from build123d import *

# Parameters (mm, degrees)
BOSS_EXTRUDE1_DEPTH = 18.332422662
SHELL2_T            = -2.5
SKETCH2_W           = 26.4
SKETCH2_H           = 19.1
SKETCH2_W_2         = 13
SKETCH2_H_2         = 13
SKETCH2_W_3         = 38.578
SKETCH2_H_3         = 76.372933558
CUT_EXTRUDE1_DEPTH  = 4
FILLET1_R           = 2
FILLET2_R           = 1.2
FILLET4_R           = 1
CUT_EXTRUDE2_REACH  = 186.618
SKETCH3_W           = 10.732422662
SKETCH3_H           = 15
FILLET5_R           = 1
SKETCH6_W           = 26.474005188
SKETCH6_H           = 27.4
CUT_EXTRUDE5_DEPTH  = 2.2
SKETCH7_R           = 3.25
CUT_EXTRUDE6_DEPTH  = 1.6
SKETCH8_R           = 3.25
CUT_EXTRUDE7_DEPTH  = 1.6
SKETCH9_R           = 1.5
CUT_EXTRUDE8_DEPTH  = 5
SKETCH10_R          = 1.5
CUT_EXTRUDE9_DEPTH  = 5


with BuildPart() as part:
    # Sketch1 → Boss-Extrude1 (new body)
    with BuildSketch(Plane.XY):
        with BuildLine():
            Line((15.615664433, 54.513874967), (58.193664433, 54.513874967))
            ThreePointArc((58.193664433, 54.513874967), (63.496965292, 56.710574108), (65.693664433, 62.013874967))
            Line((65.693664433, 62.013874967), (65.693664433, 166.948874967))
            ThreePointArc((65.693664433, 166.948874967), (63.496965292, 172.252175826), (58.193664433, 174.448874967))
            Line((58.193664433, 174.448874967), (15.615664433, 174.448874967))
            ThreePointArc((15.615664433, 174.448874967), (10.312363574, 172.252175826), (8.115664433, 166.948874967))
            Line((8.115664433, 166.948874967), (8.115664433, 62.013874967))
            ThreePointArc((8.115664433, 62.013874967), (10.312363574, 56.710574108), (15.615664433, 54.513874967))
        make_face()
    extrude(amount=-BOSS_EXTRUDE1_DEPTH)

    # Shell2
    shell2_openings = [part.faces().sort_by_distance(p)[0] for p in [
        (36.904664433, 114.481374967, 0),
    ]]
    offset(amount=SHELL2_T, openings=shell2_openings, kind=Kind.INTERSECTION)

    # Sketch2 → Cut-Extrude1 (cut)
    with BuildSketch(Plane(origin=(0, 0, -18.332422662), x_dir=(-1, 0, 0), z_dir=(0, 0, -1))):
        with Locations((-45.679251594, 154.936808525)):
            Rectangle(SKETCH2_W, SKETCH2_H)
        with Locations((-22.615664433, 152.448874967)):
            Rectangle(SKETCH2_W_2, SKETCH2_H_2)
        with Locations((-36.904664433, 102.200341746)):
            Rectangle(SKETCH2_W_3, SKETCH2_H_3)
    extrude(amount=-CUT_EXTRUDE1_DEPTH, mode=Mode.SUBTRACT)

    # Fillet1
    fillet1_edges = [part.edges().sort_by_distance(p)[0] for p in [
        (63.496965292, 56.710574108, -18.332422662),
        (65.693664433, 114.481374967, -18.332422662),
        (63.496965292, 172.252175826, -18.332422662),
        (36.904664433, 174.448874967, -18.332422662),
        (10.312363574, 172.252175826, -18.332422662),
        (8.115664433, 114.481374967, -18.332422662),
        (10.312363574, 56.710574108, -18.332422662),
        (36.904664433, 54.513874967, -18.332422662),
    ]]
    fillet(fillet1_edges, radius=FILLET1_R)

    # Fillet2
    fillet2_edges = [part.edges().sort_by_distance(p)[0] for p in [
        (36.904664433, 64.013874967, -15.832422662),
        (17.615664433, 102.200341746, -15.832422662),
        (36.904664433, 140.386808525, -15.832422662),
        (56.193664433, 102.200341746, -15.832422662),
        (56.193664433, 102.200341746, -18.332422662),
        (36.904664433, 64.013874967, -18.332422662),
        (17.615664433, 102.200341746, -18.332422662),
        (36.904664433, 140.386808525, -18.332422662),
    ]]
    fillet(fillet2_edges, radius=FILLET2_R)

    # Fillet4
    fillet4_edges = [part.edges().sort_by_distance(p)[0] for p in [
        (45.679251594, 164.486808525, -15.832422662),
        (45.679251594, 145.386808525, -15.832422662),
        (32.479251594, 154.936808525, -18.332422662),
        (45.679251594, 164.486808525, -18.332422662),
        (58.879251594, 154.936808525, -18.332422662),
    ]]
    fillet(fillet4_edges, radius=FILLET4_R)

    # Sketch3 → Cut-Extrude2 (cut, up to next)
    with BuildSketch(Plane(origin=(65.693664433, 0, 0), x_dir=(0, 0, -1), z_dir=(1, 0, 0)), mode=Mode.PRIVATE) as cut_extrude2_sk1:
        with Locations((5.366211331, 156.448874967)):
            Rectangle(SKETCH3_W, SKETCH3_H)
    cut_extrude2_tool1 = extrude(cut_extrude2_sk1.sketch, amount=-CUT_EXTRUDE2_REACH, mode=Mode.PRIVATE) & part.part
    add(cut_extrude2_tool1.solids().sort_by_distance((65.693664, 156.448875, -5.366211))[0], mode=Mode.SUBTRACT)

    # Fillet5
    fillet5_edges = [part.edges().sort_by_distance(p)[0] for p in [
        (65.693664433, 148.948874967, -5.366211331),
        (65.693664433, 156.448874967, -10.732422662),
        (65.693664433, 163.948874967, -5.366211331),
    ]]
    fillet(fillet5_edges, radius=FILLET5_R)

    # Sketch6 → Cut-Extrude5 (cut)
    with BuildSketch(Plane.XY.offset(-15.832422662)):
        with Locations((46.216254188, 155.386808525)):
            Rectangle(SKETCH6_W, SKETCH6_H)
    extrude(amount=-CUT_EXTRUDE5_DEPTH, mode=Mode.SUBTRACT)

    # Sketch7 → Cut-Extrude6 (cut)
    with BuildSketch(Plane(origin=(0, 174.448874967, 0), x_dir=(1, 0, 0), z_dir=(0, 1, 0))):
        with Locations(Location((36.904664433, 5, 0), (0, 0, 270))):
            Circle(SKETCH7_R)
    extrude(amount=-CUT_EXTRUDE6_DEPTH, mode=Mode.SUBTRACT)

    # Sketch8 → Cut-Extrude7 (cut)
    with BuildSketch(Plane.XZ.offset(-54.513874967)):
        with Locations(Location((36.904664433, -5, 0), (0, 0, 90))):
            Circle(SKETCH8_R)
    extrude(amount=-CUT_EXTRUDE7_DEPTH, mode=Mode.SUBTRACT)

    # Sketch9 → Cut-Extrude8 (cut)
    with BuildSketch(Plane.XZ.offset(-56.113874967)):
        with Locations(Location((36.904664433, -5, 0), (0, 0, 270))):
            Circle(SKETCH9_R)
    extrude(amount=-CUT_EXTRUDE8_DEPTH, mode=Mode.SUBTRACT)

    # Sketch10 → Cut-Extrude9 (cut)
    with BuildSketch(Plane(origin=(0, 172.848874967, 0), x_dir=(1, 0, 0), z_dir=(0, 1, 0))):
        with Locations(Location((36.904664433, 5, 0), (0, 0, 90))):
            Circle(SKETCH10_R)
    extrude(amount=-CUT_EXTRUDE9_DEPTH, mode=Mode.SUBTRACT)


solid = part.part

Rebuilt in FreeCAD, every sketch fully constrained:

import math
import FreeCAD as App
import Part
import Sketcher
Q = App.Units.Quantity


def edges_at(feature, points):
    """Names of the edges that pass closest to the given points."""
    edges = feature.Shape.Edges
    near = lambda p: min(range(len(edges)), key=lambda i: edges[i].distToShape(Part.Vertex(*p))[0])
    return sorted({f"Edge{near(p) + 1}" for p in points})


def faces_at(feature, points):
    """Names of the faces that lie closest to the given points."""
    faces = feature.Shape.Faces
    near = lambda p: min(range(len(faces)), key=lambda i: faces[i].distToShape(Part.Vertex(*p))[0])
    return sorted({f"Face{near(p) + 1}" for p in points})


def add_polygon(sketch, points):
    """Adds a closed chain of lines whose ends are joined by coincident constraints."""
    first, n = sketch.GeometryCount, len(points)
    for a, b in zip(points, points[1:] + points[:1]):
        sketch.addGeometry(Part.LineSegment(App.Vector(*a, 0), App.Vector(*b, 0)), False)
    for i in range(n):
        sketch.addConstraint(Sketcher.Constraint("Coincident", first + i, 2, first + (i + 1) % n, 1))

doc = App.newDocument("Part")
params = doc.addObject("Spreadsheet::Sheet", "Params")
for row, (alias, value) in enumerate([
    ("sketch1_radius", "7.5 mm"),
    ("pad1_length", "18.332423 mm"),
    ("thickness_wall", "2.5 mm"),
    ("sketch2_width", "13 mm"),
    ("sketch2_width2", "26.4 mm"),
    ("sketch2_height", "19.1 mm"),
    ("pocket1_length", "4 mm"),
    ("fillet_radius", "2 mm"),
    ("fillet2_radius", "1.2 mm"),
    ("fillet3_radius", "1 mm"),
    ("sketch3_width", "15 mm"),
    ("fillet4_radius", "1 mm"),
    ("sketch4_height", "27.4 mm"),
    ("pocket3_length", "2.2 mm"),
    ("sketch5_diameter", "6.5 mm"),
    ("pocket4_length", "1.6 mm"),
    ("sketch6_diameter", "6.5 mm"),
    ("pocket5_length", "1.6 mm"),
    ("sketch7_diameter", "3 mm"),
    ("pocket6_length", "5 mm"),
    ("sketch8_diameter", "3 mm"),
    ("pocket7_length", "5 mm"),
], start=1):
    params.set(f"A{row}", alias)
    params.set(f"B{row}", "=" + value)
    params.setAlias(f"B{row}", alias)

body = doc.addObject("PartDesign::Body", "Body")

sketch1 = doc.addObject("Sketcher::SketchObject", "Sketch")
body.addObject(sketch1)
sketch1.AttachmentSupport = (doc.XY_Plane, [""])
sketch1.MapMode = "FlatFace"
sketch1.addGeometry([
    Part.LineSegment(App.Vector(16, 55, 0), App.Vector(58, 55, 0)),
    Part.ArcOfCircle(Part.Circle(App.Vector(58, 62, 0), App.Vector(0, 0, 1), 8), math.radians(-90), math.radians(0)),
    Part.LineSegment(App.Vector(66, 62, 0), App.Vector(66, 167, 0)),
    Part.ArcOfCircle(Part.Circle(App.Vector(58, 167, 0), App.Vector(0, 0, 1), 8), math.radians(0), math.radians(90)),
    Part.LineSegment(App.Vector(58, 174, 0), App.Vector(16, 174, 0)),
    Part.ArcOfCircle(Part.Circle(App.Vector(16, 167, 0), App.Vector(0, 0, 1), 8), math.radians(90), math.radians(180)),
    Part.LineSegment(App.Vector(8, 167, 0), App.Vector(8, 62, 0)),
    Part.ArcOfCircle(Part.Circle(App.Vector(16, 62, 0), App.Vector(0, 0, 1), 8), math.radians(180), math.radians(270)),
], False)
sketch1.addConstraint([
    Sketcher.Constraint("Tangent", 0, 2, 1, 1),
    Sketcher.Constraint("Tangent", 1, 2, 2, 1),
    Sketcher.Constraint("Tangent", 2, 2, 3, 1),
    Sketcher.Constraint("Tangent", 3, 2, 4, 1),
    Sketcher.Constraint("Tangent", 4, 2, 5, 1),
    Sketcher.Constraint("Tangent", 5, 2, 6, 1),
    Sketcher.Constraint("Tangent", 6, 2, 7, 1),
    Sketcher.Constraint("Tangent", 7, 2, 0, 1),
    Sketcher.Constraint("Horizontal", 0),
    Sketcher.Constraint("Vertical", 2),
    Sketcher.Constraint("Horizontal", 4),
    Sketcher.Constraint("Vertical", 6),
    Sketcher.Constraint("Equal", 1, 3),
    Sketcher.Constraint("Equal", 3, 5),
    Sketcher.Constraint("Equal", 5, 7),
    Sketcher.Constraint("Radius", 1, Q("7.5 mm")),
    Sketcher.Constraint("DistanceX", 0, 1, 0, 2, Q("42.578 mm")),
    Sketcher.Constraint("DistanceY", 2, 1, 2, 2, Q("104.935 mm")),
    Sketcher.Constraint("DistanceX", -1, 1, 1, 3, Q("58.193664 mm")),
    Sketcher.Constraint("DistanceY", -1, 1, 1, 3, Q("62.013875 mm")),
])
sketch1.setExpression("Constraints[15]", "Params.sketch1_radius")
pad1 = doc.addObject("PartDesign::Pad", "Pad")
body.addObject(pad1)
pad1.Profile = sketch1
pad1.setExpression("Length", "Params.pad1_length")
pad1.Reversed = True
doc.recompute()

thickness = doc.addObject("PartDesign::Thickness", "Thickness")
body.addObject(thickness)
thickness.Base = (pad1, faces_at(pad1, [(36.905, 114.481, 0)]))
thickness.setExpression("Value", "Params.thickness_wall")
thickness.Reversed = True
thickness.Join = "Intersection"

sketch2 = doc.addObject("Sketcher::SketchObject", "Sketch001")
body.addObject(sketch2)
sketch2.AttachmentSupport = (doc.XY_Plane, [""])
sketch2.MapMode = "FlatFace"
sketch2.AttachmentOffset = App.Placement(App.Vector(0, 0, -18.332423), App.Rotation())
add_polygon(sketch2, [(59, 164), (59, 145), (32, 145), (32, 164)])
add_polygon(sketch2, [(29, 159), (29, 146), (16, 146), (16, 159)])
add_polygon(sketch2, [(56, 140), (56, 64), (18, 64), (18, 140)])
sketch2.addConstraint([
    Sketcher.Constraint("Vertical", 0),
    Sketcher.Constraint("Horizontal", 1),
    Sketcher.Constraint("Vertical", 2),
    Sketcher.Constraint("Horizontal", 3),
    Sketcher.Constraint("Vertical", 4),
    Sketcher.Constraint("Horizontal", 5),
    Sketcher.Constraint("Vertical", 6),
    Sketcher.Constraint("Horizontal", 7),
    Sketcher.Constraint("Vertical", 8),
    Sketcher.Constraint("Horizontal", 9),
    Sketcher.Constraint("Vertical", 10),
    Sketcher.Constraint("Horizontal", 11),
    Sketcher.Constraint("Equal", 7, 4),
    Sketcher.Constraint("DistanceX", 5, 2, 5, 1, Q("13 mm")),
    Sketcher.Constraint("DistanceX", 1, 2, 1, 1, Q("26.4 mm")),
    Sketcher.Constraint("DistanceY", 0, 2, 0, 1, Q("19.1 mm")),
    Sketcher.Constraint("DistanceY", 10, 2, 1, 2, Q("5 mm")),
    Sketcher.Constraint("DistanceX", 5, 2, 9, 2, Q("1.5 mm")),
    Sketcher.Constraint("DistanceX", 9, 2, 9, 1, Q("38.578 mm")),
    Sketcher.Constraint("DistanceY", 8, 2, 4, 2, Q("81.935 mm")),
    Sketcher.Constraint("DistanceY", 8, 2, 8, 1, Q("76.372934 mm")),
    Sketcher.Constraint("DistanceX", -1, 1, 0, 2, Q("58.879252 mm")),
    Sketcher.Constraint("DistanceY", -1, 1, 0, 2, Q("145.386809 mm")),
    Sketcher.Constraint("DistanceX", -1, 1, 4, 2, Q("29.115664 mm")),
])
sketch2.setExpression("Constraints[25]", "Params.sketch2_width")
sketch2.setExpression("Constraints[26]", "Params.sketch2_width2")
sketch2.setExpression("Constraints[27]", "Params.sketch2_height")
pocket1 = doc.addObject("PartDesign::Pocket", "Pocket")
body.addObject(pocket1)
pocket1.Profile = sketch2
pocket1.setExpression("Length", "Params.pocket1_length")
pocket1.Reversed = True
doc.recompute()

fillet = doc.addObject("PartDesign::Fillet", "Fillet")
body.addObject(fillet)
fillet.Base = (pocket1, edges_at(pocket1, [
    (63.497, 56.711, -18.332),
    (65.694, 114.481, -18.332),
    (63.497, 172.252, -18.332),
    (36.905, 174.449, -18.332),
    (10.312, 172.252, -18.332),
    (8.116, 114.481, -18.332),
    (10.312, 56.711, -18.332),
    (36.905, 54.514, -18.332),
]))
fillet.setExpression("Radius", "Params.fillet_radius")
doc.recompute()

fillet2 = doc.addObject("PartDesign::Fillet", "Fillet001")
body.addObject(fillet2)
fillet2.Base = (fillet, edges_at(fillet, [
    (36.905, 64.014, -15.832),
    (17.616, 102.2, -15.832),
    (36.905, 140.387, -15.832),
    (56.194, 102.2, -15.832),
    (56.194, 102.2, -18.332),
    (36.905, 64.014, -18.332),
    (17.616, 102.2, -18.332),
    (36.905, 140.387, -18.332),
]))
fillet2.setExpression("Radius", "Params.fillet2_radius")
doc.recompute()

fillet3 = doc.addObject("PartDesign::Fillet", "Fillet002")
body.addObject(fillet3)
fillet3.Base = (fillet2, edges_at(fillet2, [
    (45.679, 164.487, -15.832),
    (45.679, 145.387, -15.832),
    (32.479, 154.937, -18.332),
    (45.679, 164.487, -18.332),
    (58.879, 154.937, -18.332),
]))
fillet3.setExpression("Radius", "Params.fillet3_radius")

sketch3 = doc.addObject("Sketcher::SketchObject", "Sketch002")
body.addObject(sketch3)
sketch3.AttachmentSupport = (doc.YZ_Plane, [""])
sketch3.MapMode = "FlatFace"
sketch3.AttachmentOffset = App.Placement(App.Vector(0, 0, 65.693664), App.Rotation())
add_polygon(sketch3, [(164, 0), (149, 0), (149, -11), (164, -11)])
sketch3.addConstraint([
    Sketcher.Constraint("Horizontal", 0),
    Sketcher.Constraint("Vertical", 1),
    Sketcher.Constraint("Horizontal", 2),
    Sketcher.Constraint("Vertical", 3),
    Sketcher.Constraint("PointOnObject", 0, 2, -1),
    Sketcher.Constraint("DistanceX", 0, 2, 0, 1, Q("15 mm")),
    Sketcher.Constraint("DistanceY", 1, 2, 1, 1, Q("10.732423 mm")),
    Sketcher.Constraint("DistanceX", -1, 1, 0, 2, Q("148.948875 mm")),
])
sketch3.setExpression("Constraints[9]", "Params.sketch3_width")
pocket2 = doc.addObject("PartDesign::Pocket", "Pocket001")
body.addObject(pocket2)
pocket2.Profile = sketch3
pocket2.Type = "UpToFirst"
doc.recompute()

fillet4 = doc.addObject("PartDesign::Fillet", "Fillet003")
body.addObject(fillet4)
fillet4.Base = (pocket2, edges_at(pocket2, [(65.694, 148.949, -5.366), (65.694, 156.449, -10.732), (65.694, 163.949, -5.366)]))
fillet4.setExpression("Radius", "Params.fillet4_radius")

sketch4 = doc.addObject("Sketcher::SketchObject", "Sketch003")
body.addObject(sketch4)
sketch4.AttachmentSupport = (doc.XY_Plane, [""])
sketch4.MapMode = "FlatFace"
sketch4.AttachmentOffset = App.Placement(App.Vector(0, 0, -15.832423), App.Rotation())
add_polygon(sketch4, [(33, 169), (33, 142), (59, 142), (59, 169)])
sketch4.addConstraint([
    Sketcher.Constraint("Vertical", 0),
    Sketcher.Constraint("Horizontal", 1),
    Sketcher.Constraint("Vertical", 2),
    Sketcher.Constraint("Horizontal", 3),
    Sketcher.Constraint("DistanceY", 0, 2, 0, 1, Q("27.4 mm")),
    Sketcher.Constraint("DistanceX", 1, 1, 1, 2, Q("26.474005 mm")),
    Sketcher.Constraint("DistanceX", -1, 1, 0, 2, Q("32.979252 mm")),
    Sketcher.Constraint("DistanceY", -1, 1, 0, 2, Q("141.686809 mm")),
])
sketch4.setExpression("Constraints[8]", "Params.sketch4_height")
pocket3 = doc.addObject("PartDesign::Pocket", "Pocket002")
body.addObject(pocket3)
pocket3.Profile = sketch4
pocket3.setExpression("Length", "Params.pocket3_length")

sketch5 = doc.addObject("Sketcher::SketchObject", "Sketch004")
body.addObject(sketch5)
sketch5.AttachmentSupport = (doc.XZ_Plane, [""])
sketch5.MapMode = "FlatFace"
sketch5.AttachmentOffset = App.Placement(App.Vector(0, 0, -174.448875), App.Rotation())
sketch5.addGeometry(Part.Circle(App.Vector(36.9, -5, 0), App.Vector(0, 0, 1), 3.2), False)
sketch5.addConstraint([
    Sketcher.Constraint("Diameter", 0, Q("6.5 mm")),
    Sketcher.Constraint("DistanceY", 0, 3, -1, 1, Q("5 mm")),
    Sketcher.Constraint("DistanceX", -1, 1, 0, 3, Q("36.904664 mm")),
])
sketch5.setExpression("Constraints[0]", "Params.sketch5_diameter")
pocket4 = doc.addObject("PartDesign::Pocket", "Pocket003")
body.addObject(pocket4)
pocket4.Profile = sketch5
pocket4.setExpression("Length", "Params.pocket4_length")
pocket4.Reversed = True

sketch6 = doc.addObject("Sketcher::SketchObject", "Sketch005")
body.addObject(sketch6)
sketch6.AttachmentSupport = (doc.XZ_Plane, [""])
sketch6.MapMode = "FlatFace"
sketch6.AttachmentOffset = App.Placement(App.Vector(0, 0, -54.513875), App.Rotation())
sketch6.addGeometry(Part.Circle(App.Vector(36.9, -5, 0), App.Vector(0, 0, 1), 3.2), False)
sketch6.addConstraint([
    Sketcher.Constraint("Diameter", 0, Q("6.5 mm")),
    Sketcher.Constraint("DistanceY", 0, 3, -1, 1, Q("5 mm")),
    Sketcher.Constraint("DistanceX", -1, 1, 0, 3, Q("36.904664 mm")),
])
sketch6.setExpression("Constraints[0]", "Params.sketch6_diameter")
pocket5 = doc.addObject("PartDesign::Pocket", "Pocket004")
body.addObject(pocket5)
pocket5.Profile = sketch6
pocket5.setExpression("Length", "Params.pocket5_length")

sketch7 = doc.addObject("Sketcher::SketchObject", "Sketch006")
body.addObject(sketch7)
sketch7.AttachmentSupport = (doc.XZ_Plane, [""])
sketch7.MapMode = "FlatFace"
sketch7.AttachmentOffset = App.Placement(App.Vector(0, 0, -56.113875), App.Rotation())
sketch7.addGeometry(Part.Circle(App.Vector(36.9, -5, 0), App.Vector(0, 0, 1), 1.5), False)
sketch7.addConstraint([
    Sketcher.Constraint("Diameter", 0, Q("3 mm")),
    Sketcher.Constraint("DistanceY", 0, 3, -1, 1, Q("5 mm")),
    Sketcher.Constraint("DistanceX", -1, 1, 0, 3, Q("36.904664 mm")),
])
sketch7.setExpression("Constraints[0]", "Params.sketch7_diameter")
pocket6 = doc.addObject("PartDesign::Pocket", "Pocket005")
body.addObject(pocket6)
pocket6.Profile = sketch7
pocket6.setExpression("Length", "Params.pocket6_length")

sketch8 = doc.addObject("Sketcher::SketchObject", "Sketch007")
body.addObject(sketch8)
sketch8.AttachmentSupport = (doc.XZ_Plane, [""])
sketch8.MapMode = "FlatFace"
sketch8.AttachmentOffset = App.Placement(App.Vector(0, 0, -172.848875), App.Rotation())
sketch8.addGeometry(Part.Circle(App.Vector(36.9, -5, 0), App.Vector(0, 0, 1), 1.5), False)
sketch8.addConstraint([
    Sketcher.Constraint("Diameter", 0, Q("3 mm")),
    Sketcher.Constraint("DistanceY", 0, 3, -1, 1, Q("5 mm")),
    Sketcher.Constraint("DistanceX", -1, 1, 0, 3, Q("36.904664 mm")),
])
sketch8.setExpression("Constraints[0]", "Params.sketch8_diameter")
pocket7 = doc.addObject("PartDesign::Pocket", "Pocket006")
body.addObject(pocket7)
pocket7.Profile = sketch8
pocket7.setExpression("Length", "Params.pocket7_length")
pocket7.Reversed = True

doc.recompute()
